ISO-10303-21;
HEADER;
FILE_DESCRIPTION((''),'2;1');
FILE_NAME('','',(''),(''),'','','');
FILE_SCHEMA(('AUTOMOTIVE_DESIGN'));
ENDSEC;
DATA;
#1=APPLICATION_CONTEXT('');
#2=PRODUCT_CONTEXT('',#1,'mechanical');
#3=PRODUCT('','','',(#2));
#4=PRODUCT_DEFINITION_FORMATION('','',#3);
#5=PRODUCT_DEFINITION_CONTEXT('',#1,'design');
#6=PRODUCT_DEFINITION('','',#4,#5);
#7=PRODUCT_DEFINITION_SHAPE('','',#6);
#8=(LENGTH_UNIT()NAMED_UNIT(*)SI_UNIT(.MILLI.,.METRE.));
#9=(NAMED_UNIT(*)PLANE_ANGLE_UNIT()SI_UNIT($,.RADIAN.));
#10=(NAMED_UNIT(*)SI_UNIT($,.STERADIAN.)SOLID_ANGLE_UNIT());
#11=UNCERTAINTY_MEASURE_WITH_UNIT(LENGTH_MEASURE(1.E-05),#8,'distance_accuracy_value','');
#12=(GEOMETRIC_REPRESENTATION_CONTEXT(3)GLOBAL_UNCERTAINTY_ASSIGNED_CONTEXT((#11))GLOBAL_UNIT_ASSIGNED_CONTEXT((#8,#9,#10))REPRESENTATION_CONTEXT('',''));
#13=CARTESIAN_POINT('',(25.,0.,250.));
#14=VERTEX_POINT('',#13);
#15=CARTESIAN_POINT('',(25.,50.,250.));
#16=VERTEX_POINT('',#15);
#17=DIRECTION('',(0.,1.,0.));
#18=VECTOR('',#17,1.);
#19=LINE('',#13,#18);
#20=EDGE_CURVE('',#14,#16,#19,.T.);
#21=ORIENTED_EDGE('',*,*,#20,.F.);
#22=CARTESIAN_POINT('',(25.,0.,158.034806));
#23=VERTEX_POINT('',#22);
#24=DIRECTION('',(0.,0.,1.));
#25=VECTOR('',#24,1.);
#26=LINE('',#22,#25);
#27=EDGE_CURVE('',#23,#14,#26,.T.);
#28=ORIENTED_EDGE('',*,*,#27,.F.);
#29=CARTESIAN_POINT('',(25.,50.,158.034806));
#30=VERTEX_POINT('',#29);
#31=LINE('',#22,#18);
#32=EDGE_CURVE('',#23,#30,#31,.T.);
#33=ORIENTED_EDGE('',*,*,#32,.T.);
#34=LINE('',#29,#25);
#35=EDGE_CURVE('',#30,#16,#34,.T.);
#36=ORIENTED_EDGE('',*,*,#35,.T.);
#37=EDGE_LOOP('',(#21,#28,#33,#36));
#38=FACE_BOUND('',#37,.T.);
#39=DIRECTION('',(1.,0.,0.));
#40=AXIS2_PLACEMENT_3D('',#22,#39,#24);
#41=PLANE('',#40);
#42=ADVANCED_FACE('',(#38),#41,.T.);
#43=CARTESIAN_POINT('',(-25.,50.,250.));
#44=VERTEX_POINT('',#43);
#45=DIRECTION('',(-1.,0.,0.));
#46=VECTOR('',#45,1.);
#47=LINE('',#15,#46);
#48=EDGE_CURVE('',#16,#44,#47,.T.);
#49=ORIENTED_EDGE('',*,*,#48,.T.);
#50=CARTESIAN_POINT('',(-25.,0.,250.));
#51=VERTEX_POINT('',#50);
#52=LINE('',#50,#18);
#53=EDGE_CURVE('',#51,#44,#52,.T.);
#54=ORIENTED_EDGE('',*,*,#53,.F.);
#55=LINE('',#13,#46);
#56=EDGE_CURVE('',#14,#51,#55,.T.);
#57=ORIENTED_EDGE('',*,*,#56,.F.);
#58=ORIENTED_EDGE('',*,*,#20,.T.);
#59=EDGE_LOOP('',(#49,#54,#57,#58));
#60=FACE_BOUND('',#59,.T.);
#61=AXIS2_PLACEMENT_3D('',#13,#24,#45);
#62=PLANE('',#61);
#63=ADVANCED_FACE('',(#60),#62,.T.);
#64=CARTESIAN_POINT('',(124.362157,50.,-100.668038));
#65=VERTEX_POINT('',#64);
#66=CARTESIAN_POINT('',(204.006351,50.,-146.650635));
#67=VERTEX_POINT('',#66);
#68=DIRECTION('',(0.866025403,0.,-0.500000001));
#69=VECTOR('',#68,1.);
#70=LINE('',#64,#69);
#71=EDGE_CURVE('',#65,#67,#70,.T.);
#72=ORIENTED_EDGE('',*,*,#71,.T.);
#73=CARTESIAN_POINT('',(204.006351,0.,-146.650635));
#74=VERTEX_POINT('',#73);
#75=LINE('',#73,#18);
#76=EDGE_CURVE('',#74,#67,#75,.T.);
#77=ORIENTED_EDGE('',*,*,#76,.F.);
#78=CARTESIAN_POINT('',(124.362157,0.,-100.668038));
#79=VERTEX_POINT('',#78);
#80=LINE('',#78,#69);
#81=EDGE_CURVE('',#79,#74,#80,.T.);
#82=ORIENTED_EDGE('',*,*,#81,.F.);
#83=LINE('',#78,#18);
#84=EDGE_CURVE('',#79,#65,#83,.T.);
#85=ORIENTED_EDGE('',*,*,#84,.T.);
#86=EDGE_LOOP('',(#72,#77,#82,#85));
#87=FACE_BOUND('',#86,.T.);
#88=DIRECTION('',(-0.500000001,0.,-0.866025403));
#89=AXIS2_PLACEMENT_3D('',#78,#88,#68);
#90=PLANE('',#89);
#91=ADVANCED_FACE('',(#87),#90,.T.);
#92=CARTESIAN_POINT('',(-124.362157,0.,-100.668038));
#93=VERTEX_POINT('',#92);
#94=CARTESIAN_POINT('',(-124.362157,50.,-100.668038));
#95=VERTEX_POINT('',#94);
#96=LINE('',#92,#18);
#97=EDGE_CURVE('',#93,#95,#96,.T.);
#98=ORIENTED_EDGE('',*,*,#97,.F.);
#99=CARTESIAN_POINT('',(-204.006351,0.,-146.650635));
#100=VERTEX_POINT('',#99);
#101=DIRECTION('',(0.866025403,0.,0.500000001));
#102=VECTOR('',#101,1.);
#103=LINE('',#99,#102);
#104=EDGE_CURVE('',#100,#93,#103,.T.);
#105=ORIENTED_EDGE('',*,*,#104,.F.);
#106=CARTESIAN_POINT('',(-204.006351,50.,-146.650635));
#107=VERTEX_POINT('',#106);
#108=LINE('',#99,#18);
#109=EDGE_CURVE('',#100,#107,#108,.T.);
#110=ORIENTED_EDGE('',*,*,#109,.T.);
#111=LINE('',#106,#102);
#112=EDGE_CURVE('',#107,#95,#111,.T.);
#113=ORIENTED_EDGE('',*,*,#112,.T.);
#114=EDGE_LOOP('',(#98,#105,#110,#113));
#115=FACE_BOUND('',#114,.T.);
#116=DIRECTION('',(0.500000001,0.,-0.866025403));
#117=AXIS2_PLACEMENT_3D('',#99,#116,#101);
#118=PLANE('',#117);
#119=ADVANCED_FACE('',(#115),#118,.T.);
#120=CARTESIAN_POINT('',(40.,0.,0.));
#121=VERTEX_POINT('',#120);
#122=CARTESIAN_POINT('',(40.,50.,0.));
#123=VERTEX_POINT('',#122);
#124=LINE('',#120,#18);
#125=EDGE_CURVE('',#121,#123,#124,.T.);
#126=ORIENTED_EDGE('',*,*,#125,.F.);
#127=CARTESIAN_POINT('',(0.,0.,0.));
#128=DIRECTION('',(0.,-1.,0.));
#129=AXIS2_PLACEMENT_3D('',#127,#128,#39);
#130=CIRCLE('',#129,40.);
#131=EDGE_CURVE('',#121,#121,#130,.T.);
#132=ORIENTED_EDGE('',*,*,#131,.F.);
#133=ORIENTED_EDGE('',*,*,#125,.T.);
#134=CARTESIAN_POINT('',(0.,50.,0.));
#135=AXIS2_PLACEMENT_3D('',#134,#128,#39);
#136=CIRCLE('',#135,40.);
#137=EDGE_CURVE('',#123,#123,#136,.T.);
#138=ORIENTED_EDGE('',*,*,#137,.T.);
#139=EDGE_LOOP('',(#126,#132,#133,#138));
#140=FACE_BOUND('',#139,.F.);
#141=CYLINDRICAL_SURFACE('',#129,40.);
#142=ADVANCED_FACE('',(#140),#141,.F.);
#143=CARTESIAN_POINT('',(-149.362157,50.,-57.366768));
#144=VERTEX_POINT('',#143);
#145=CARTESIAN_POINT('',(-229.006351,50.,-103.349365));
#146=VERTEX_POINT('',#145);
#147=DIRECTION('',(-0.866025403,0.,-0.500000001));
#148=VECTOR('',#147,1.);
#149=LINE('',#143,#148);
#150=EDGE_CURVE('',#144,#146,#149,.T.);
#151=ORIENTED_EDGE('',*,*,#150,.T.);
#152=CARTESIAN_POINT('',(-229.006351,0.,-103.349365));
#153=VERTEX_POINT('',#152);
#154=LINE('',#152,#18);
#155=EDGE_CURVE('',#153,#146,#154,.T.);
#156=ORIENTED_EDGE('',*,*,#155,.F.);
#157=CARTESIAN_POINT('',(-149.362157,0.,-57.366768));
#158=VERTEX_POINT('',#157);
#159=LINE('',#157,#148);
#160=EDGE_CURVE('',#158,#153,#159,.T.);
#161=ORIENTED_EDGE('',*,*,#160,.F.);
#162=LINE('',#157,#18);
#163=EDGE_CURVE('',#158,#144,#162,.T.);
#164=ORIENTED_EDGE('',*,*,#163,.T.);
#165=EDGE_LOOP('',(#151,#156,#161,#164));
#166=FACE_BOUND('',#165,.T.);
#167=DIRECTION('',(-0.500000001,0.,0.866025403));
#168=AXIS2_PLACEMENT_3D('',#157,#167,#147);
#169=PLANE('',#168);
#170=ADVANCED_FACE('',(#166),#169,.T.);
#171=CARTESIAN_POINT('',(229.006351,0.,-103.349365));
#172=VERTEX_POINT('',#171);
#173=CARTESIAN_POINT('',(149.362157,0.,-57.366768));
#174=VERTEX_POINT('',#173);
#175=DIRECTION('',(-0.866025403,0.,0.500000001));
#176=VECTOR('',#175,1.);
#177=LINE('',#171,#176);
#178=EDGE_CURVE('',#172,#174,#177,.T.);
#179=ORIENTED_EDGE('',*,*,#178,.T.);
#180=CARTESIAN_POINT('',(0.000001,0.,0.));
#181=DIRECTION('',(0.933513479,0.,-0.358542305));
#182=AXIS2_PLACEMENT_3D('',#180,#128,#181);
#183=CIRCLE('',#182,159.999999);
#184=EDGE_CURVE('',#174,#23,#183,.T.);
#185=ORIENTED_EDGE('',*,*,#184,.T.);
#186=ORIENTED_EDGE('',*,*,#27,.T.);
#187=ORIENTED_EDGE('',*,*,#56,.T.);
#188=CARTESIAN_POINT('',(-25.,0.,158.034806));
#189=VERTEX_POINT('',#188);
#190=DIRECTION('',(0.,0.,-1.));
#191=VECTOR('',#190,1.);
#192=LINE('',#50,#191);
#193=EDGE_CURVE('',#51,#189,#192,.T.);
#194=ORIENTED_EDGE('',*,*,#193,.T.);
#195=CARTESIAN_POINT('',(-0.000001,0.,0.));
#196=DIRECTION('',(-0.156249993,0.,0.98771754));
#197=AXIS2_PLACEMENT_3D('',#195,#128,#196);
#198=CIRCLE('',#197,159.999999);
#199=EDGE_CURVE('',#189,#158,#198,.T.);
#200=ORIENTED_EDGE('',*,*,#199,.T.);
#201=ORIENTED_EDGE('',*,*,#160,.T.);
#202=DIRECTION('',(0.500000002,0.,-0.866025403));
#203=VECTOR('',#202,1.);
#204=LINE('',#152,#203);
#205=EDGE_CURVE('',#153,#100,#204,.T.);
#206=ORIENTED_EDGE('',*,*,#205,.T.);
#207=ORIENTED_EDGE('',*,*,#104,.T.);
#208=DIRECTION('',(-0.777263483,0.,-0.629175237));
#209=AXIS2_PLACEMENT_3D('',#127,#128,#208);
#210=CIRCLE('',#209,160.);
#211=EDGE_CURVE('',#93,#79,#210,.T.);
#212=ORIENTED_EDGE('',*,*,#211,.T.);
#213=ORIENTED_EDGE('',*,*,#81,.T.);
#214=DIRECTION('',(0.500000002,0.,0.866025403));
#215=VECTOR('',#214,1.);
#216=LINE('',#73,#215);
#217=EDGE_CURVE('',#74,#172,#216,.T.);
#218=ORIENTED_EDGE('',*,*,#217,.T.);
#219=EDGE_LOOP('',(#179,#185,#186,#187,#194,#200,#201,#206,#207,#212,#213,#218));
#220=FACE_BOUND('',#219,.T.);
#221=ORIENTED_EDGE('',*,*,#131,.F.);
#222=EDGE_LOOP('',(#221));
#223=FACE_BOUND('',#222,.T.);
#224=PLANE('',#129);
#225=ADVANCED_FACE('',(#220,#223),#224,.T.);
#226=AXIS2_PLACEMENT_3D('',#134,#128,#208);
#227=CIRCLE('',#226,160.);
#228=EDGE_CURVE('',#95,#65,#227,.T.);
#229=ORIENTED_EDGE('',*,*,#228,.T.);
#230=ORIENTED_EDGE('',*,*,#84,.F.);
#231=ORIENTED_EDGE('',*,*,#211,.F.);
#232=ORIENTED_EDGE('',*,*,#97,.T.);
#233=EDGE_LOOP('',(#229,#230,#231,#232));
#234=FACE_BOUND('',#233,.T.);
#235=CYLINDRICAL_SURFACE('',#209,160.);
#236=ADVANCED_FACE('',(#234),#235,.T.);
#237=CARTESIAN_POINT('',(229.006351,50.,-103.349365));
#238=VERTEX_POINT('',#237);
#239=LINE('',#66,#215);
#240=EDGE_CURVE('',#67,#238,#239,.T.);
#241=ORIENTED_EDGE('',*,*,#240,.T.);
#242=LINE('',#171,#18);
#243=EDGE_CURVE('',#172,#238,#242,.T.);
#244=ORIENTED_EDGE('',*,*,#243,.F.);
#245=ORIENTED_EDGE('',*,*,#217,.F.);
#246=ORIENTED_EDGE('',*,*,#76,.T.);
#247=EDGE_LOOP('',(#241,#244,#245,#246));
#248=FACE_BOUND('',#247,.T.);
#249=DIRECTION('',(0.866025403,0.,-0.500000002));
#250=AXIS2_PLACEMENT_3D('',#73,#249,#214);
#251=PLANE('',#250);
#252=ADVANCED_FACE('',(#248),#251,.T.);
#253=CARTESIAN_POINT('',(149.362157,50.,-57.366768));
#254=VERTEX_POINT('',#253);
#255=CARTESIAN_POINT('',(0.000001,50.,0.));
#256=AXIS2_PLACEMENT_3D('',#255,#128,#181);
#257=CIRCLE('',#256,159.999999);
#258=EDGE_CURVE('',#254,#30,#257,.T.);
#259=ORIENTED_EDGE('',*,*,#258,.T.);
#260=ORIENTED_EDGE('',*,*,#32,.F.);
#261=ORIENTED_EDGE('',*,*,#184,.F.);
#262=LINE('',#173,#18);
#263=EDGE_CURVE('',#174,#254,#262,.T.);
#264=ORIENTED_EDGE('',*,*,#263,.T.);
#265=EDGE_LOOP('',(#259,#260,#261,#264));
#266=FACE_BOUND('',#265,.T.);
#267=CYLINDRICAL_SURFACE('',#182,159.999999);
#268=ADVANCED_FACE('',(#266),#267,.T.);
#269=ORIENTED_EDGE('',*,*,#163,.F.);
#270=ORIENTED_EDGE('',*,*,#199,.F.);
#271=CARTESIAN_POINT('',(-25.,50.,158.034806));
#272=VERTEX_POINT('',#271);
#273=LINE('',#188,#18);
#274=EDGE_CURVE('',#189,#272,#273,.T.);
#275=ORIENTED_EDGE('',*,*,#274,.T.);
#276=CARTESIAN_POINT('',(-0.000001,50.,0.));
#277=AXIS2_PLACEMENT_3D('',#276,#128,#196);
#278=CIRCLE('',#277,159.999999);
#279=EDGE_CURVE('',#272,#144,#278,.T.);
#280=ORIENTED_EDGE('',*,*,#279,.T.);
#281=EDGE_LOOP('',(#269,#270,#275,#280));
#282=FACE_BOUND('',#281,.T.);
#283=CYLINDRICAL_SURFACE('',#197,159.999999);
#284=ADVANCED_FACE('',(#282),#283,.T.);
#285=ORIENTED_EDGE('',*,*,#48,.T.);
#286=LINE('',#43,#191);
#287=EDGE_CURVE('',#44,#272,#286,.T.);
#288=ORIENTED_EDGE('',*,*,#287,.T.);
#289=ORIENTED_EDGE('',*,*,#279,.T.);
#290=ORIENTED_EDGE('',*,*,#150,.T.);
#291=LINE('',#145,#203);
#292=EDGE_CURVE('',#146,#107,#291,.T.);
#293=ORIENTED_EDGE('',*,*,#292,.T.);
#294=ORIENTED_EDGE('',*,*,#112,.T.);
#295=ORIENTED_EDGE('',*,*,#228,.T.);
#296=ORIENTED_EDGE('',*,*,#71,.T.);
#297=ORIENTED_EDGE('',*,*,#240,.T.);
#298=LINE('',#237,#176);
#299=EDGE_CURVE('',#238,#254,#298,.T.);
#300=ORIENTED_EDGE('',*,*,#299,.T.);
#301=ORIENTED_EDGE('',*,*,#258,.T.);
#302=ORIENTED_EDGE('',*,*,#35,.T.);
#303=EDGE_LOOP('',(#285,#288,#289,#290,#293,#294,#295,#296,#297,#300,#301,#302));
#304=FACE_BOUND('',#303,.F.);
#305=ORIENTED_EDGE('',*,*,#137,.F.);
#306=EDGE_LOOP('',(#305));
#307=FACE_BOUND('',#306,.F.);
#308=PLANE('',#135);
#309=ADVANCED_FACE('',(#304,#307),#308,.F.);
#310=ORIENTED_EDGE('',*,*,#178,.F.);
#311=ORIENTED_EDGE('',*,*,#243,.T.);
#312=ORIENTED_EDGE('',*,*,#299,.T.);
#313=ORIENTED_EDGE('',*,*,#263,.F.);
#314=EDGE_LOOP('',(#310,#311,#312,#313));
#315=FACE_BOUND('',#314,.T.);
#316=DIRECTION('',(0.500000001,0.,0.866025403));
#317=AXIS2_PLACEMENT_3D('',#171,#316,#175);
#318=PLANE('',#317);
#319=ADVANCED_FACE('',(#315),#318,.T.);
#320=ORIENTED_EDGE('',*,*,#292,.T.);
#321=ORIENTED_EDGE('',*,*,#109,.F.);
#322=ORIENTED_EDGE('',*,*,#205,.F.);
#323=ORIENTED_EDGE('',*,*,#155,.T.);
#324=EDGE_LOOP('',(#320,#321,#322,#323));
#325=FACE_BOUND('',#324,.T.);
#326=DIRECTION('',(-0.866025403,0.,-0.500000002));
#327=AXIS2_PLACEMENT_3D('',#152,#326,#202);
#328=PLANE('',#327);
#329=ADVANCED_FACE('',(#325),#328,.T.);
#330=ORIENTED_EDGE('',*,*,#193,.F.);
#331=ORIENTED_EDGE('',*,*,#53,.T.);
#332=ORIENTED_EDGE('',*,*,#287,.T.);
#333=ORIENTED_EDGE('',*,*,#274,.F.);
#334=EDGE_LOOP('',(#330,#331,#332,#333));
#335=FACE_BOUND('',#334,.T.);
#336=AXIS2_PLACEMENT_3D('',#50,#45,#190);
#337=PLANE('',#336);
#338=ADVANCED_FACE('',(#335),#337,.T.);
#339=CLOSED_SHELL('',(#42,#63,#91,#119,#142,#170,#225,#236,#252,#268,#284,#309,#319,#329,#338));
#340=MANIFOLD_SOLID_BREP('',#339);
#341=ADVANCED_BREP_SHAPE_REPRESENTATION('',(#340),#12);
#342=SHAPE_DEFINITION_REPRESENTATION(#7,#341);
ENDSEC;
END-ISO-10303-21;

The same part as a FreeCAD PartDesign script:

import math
import FreeCAD as App
import Part
import Sketcher

V = App.Vector
Q = App.Units.Quantity

doc = App.newDocument("Part")
body = doc.addObject("PartDesign::Body", "Body")

# Sketch on XZ plane
sketch1 = body.newObject("Sketcher::SketchObject", "Sketch")
sketch1.AttachmentSupport = (doc.getObject("XZ_Plane"), [""])
sketch1.MapMode = "FlatFace"
sketch1.addGeometry(Part.LineSegment(V(-25, 250, 0), V(-25, 158.034806, 0)), False)
sketch1.addGeometry(Part.ArcOfCircle(Part.Circle(V(-0.000001, 0, 0), V(0, 0, 1), 159.999999), math.radians(98.989299), math.radians(201.010701)), False)
sketch1.addGeometry(Part.LineSegment(V(-149.362157, -57.366768, 0), V(-229.006351, -103.349365, 0)), False)
sketch1.addGeometry(Part.LineSegment(V(-229.006351, -103.349365, 0), V(-204.006351, -146.650635, 0)), False)
sketch1.addGeometry(Part.LineSegment(V(-204.006351, -146.650635, 0), V(-124.362157, -100.668038, 0)), False)
sketch1.addGeometry(Part.ArcOfCircle(Part.Circle(V(0, 0, 0), V(0, 0, 1), 160), math.radians(-141.010701), math.radians(-38.989299)), False)
sketch1.addGeometry(Part.LineSegment(V(124.362157, -100.668038, 0), V(204.006351, -146.650635, 0)), False)
sketch1.addGeometry(Part.LineSegment(V(204.006351, -146.650635, 0), V(229.006351, -103.349365, 0)), False)
sketch1.addGeometry(Part.LineSegment(V(229.006351, -103.349365, 0), V(149.362157, -57.366768, 0)), False)
sketch1.addGeometry(Part.ArcOfCircle(Part.Circle(V(0.000001, 0, 0), V(0, 0, 1), 159.999999), math.radians(-21.010701), math.radians(81.010701)), False)
sketch1.addGeometry(Part.LineSegment(V(25, 158.034806, 0), V(25, 250, 0)), False)
sketch1.addGeometry(Part.LineSegment(V(25, 250, 0), V(-25, 250, 0)), False)
sketch1.addGeometry(Part.Circle(V(0, 0, 0), V(0, 0, 1), 40), False)
sketch1.addConstraint(Sketcher.Constraint("Coincident", 0, 2, 1, 1))
sketch1.addConstraint(Sketcher.Constraint("Coincident", 1, 2, 2, 1))
sketch1.addConstraint(Sketcher.Constraint("Coincident", 2, 2, 3, 1))
sketch1.addConstraint(Sketcher.Constraint("Coincident", 3, 2, 4, 1))
sketch1.addConstraint(Sketcher.Constraint("Coincident", 4, 2, 5, 1))
sketch1.addConstraint(Sketcher.Constraint("Coincident", 5, 2, 6, 1))
sketch1.addConstraint(Sketcher.Constraint("Coincident", 6, 2, 7, 1))
sketch1.addConstraint(Sketcher.Constraint("Coincident", 7, 2, 8, 1))
sketch1.addConstraint(Sketcher.Constraint("Coincident", 8, 2, 9, 1))
sketch1.addConstraint(Sketcher.Constraint("Coincident", 9, 2, 10, 1))
sketch1.addConstraint(Sketcher.Constraint("Coincident", 10, 2, 11, 1))
sketch1.addConstraint(Sketcher.Constraint("Coincident", 11, 2, 0, 1))
sketch1.addConstraint(Sketcher.Constraint("Vertical", 0))
sketch1.addConstraint(Sketcher.Constraint("Vertical", 10))
sketch1.addConstraint(Sketcher.Constraint("Horizontal", 11))
sketch1.addConstraint(Sketcher.Constraint("Coincident", 1, 3, -1, 1))
sketch1.addConstraint(Sketcher.Constraint("Coincident", 5, 3, -1, 1))
sketch1.addConstraint(Sketcher.Constraint("Coincident", 9, 3, -1, 1))
sketch1.addConstraint(Sketcher.Constraint("Coincident", 12, 3, -1, 1))
sketch1.addConstraint(Sketcher.Constraint("Equal", 1, 5))
sketch1.addConstraint(Sketcher.Constraint("Equal", 5, 9))
sketch1.addConstraint(Sketcher.Constraint("Symmetric", 3, 2, 6, 2, -2))
sketch1.addConstraint(Sketcher.Constraint("Symmetric", 2, 2, 7, 2, -2))
sketch1.addConstraint(Sketcher.Constraint("Perpendicular", 2, 3))
sketch1.addConstraint(Sketcher.Constraint("Perpendicular", 3, 4))
sketch1.addConstraint(Sketcher.Constraint("Perpendicular", 6, 7))
sketch1.addConstraint(Sketcher.Constraint("Perpendicular", 7, 8))
sketch1.addConstraint(Sketcher.Constraint("Horizontal", 0, 2, 9, 2))
sketch1.addConstraint(Sketcher.Constraint("Equal", 2, 4))
sketch1.addConstraint(Sketcher.Constraint("Diameter", 12, 80.0))
sketch1.addConstraint(Sketcher.Constraint("Radius", 1, 159.999999))
sketch1.addConstraint(Sketcher.Constraint("DistanceX", 11, 2, 11, 1, 50.0))
sketch1.addConstraint(Sketcher.Constraint("Angle", 2, Q("-150 deg")))
sketch1.addConstraint(Sketcher.Constraint("Distance", 3, 50.0))
sketch1.addConstraint(Sketcher.Constraint("DistanceY", -1, 1, 10, 2, 250.0))
sketch1.addConstraint(Sketcher.Constraint("DistanceX", 2, 2, -1, 1, 229.006351))
pad1 = body.newObject("PartDesign::Pad", "Pad")
pad1.Profile = sketch1
pad1.Length = 50
pad1.Reversed = True

doc.recompute()
